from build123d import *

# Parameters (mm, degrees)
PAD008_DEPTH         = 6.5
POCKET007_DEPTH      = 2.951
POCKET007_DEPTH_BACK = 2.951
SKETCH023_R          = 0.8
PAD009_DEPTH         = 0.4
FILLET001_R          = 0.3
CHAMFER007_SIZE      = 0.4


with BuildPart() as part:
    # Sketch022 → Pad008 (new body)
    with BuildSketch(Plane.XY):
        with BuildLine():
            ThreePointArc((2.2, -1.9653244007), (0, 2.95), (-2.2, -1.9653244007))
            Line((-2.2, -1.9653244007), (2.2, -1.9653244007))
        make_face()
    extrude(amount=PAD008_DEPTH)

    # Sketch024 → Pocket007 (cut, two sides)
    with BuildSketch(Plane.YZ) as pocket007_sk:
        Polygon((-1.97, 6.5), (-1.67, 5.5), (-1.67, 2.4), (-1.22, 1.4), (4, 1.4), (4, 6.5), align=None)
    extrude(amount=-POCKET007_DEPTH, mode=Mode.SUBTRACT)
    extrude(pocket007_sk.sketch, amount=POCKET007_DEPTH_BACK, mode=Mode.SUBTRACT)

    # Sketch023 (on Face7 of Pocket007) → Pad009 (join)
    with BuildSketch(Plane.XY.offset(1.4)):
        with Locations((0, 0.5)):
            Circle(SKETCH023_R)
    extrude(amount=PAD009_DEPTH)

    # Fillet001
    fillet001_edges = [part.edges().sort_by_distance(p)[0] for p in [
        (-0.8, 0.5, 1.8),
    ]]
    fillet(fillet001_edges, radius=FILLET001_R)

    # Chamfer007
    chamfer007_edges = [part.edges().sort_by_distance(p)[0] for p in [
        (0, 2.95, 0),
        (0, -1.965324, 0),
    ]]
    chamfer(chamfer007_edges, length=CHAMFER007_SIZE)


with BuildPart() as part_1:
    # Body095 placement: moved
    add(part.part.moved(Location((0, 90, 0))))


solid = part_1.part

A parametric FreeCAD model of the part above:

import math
import FreeCAD as App
import Part
import Sketcher


def edges_at(feature, points):
    """Names of the edges that pass closest to the given points."""
    edges = feature.Shape.Edges
    near = lambda p: min(range(len(edges)), key=lambda i: edges[i].distToShape(Part.Vertex(*p))[0])
    return sorted({f"Edge{near(p) + 1}" for p in points})

doc = App.newDocument("Part")
body = doc.addObject("PartDesign::Body", "Body")

# Sketch on XY plane
sketch1 = body.newObject("Sketcher::SketchObject", "Sketch")
sketch1.AttachmentSupport = (doc.getObject("XY_Plane"), [""])
sketch1.MapMode = "FlatFace"
sketch1.addGeometry([
    Part.ArcOfCircle(Part.Circle(App.Vector(0, 0, 0), App.Vector(0, 0, 1), 2.95), math.radians(-41.775348), math.radians(221.775348)),
    Part.LineSegment(App.Vector(-2.2, -1.965324, 0), App.Vector(2.2, -1.965324, 0)),
], False)
sketch1.addConstraint([
    Sketcher.Constraint("Coincident", 0, 1, 1, 2),
    Sketcher.Constraint("Coincident", 1, 1, 0, 2),
    Sketcher.Constraint("Horizontal", 1),
    Sketcher.Constraint("Coincident", 0, 3, -1, 1),
    Sketcher.Constraint("Radius", 0, 2.95),
    Sketcher.Constraint("DistanceX", 1, 1, 1, 2, 4.4),
])
pad1 = body.newObject("PartDesign::Pad", "Pad")
pad1.Profile = sketch1
pad1.Length = 6.5

# Sketch on YZ plane
sketch2 = body.newObject("Sketcher::SketchObject", "Sketch001")
sketch2.AttachmentSupport = (doc.getObject("YZ_Plane"), [""])
sketch2.MapMode = "FlatFace"
sketch2.addGeometry([
    Part.LineSegment(App.Vector(-1.97, 6.5, 0), App.Vector(-1.67, 5.5, 0)),  # 0
    Part.LineSegment(App.Vector(-1.67, 5.5, 0), App.Vector(-1.67, 2.4, 0)),  # 1
    Part.LineSegment(App.Vector(-1.67, 2.4, 0), App.Vector(-1.22, 1.4, 0)),  # 2
    Part.LineSegment(App.Vector(-1.22, 1.4, 0), App.Vector(4, 1.4, 0)),  # 3
    Part.LineSegment(App.Vector(4, 1.4, 0), App.Vector(4, 6.5, 0)),  # 4
    Part.LineSegment(App.Vector(4, 6.5, 0), App.Vector(-1.97, 6.5, 0)),  # 5
], False)
sketch2.addConstraint([
    Sketcher.Constraint("Coincident", 0, 2, 1, 1),
    Sketcher.Constraint("Coincident", 1, 2, 2, 1),
    Sketcher.Constraint("Coincident", 2, 2, 3, 1),
    Sketcher.Constraint("Coincident", 3, 2, 4, 1),
    Sketcher.Constraint("Coincident", 4, 2, 5, 1),
    Sketcher.Constraint("Coincident", 5, 2, 0, 1),
    Sketcher.Constraint("Vertical", 1),
    Sketcher.Constraint("Horizontal", 3),
    Sketcher.Constraint("Vertical", 4),
    Sketcher.Constraint("Horizontal", 5),
    Sketcher.Constraint("DistanceY", 1, 2, 1, 1, 3.1),
    Sketcher.Constraint("DistanceY", 4, 1, 4, 2, 5.1),
    Sketcher.Constraint("DistanceX", -1, 1, 3, 2, 4.0),
    Sketcher.Constraint("DistanceY", 2, 2, 1, 2, 1.0),
    Sketcher.Constraint("DistanceX", 3, 1, 3, 2, 5.22),
    Sketcher.Constraint("DistanceX", 5, 2, 5, 1, 5.97),
    Sketcher.Constraint("DistanceY", -1, 1, 0, 2, 5.5),
    Sketcher.Constraint("DistanceX", 5, 2, 0, 2, 0.3),
])
pocket1 = body.newObject("PartDesign::Pocket", "Pocket")
pocket1.Profile = sketch2
pocket1.Type = "ThroughAll"
pocket1.Midplane = True

# Sketch on XY plane
sketch3 = body.newObject("Sketcher::SketchObject", "Sketch002")
sketch3.AttachmentSupport = (doc.getObject("XY_Plane"), [""])
sketch3.MapMode = "FlatFace"
sketch3.AttachmentOffset = App.Placement(App.Vector(0, 0, 1.4), App.Rotation())
sketch3.addGeometry(Part.Circle(App.Vector(0, 0.5, 0), App.Vector(0, 0, 1), 0.8), False)
sketch3.addConstraint([
    Sketcher.Constraint("PointOnObject", 0, 3, -2),
    Sketcher.Constraint("Diameter", 0, 1.6),
    Sketcher.Constraint("DistanceY", -1, 1, 0, 3, 0.5),
])
pad2 = body.newObject("PartDesign::Pad", "Pad001")
pad2.Profile = sketch3
pad2.Length = 0.4
doc.recompute()

fillet = body.newObject("PartDesign::Fillet", "Fillet")
fillet.Base = (pad2, edges_at(pad2, [(-0.8, 0.5, 1.8)]))
fillet.Radius = 0.3
doc.recompute()

chamfer = body.newObject("PartDesign::Chamfer", "Chamfer")
chamfer.Base = (fillet, edges_at(fillet, [(0, 2.95, 0), (0, -1.965, 0)]))
chamfer.Size = 0.4
body2 = doc.addObject("PartDesign::Body", "Body001")
doc.recompute()

body.Placement = App.Placement(App.Vector(0, 90, 0), App.Rotation(App.Vector(0, 0, 1), 0))
boolean = body2.newObject("PartDesign::Boolean", "Boolean")
boolean.Type = "Fuse"
boolean.addObjects([body])

doc.recompute()
